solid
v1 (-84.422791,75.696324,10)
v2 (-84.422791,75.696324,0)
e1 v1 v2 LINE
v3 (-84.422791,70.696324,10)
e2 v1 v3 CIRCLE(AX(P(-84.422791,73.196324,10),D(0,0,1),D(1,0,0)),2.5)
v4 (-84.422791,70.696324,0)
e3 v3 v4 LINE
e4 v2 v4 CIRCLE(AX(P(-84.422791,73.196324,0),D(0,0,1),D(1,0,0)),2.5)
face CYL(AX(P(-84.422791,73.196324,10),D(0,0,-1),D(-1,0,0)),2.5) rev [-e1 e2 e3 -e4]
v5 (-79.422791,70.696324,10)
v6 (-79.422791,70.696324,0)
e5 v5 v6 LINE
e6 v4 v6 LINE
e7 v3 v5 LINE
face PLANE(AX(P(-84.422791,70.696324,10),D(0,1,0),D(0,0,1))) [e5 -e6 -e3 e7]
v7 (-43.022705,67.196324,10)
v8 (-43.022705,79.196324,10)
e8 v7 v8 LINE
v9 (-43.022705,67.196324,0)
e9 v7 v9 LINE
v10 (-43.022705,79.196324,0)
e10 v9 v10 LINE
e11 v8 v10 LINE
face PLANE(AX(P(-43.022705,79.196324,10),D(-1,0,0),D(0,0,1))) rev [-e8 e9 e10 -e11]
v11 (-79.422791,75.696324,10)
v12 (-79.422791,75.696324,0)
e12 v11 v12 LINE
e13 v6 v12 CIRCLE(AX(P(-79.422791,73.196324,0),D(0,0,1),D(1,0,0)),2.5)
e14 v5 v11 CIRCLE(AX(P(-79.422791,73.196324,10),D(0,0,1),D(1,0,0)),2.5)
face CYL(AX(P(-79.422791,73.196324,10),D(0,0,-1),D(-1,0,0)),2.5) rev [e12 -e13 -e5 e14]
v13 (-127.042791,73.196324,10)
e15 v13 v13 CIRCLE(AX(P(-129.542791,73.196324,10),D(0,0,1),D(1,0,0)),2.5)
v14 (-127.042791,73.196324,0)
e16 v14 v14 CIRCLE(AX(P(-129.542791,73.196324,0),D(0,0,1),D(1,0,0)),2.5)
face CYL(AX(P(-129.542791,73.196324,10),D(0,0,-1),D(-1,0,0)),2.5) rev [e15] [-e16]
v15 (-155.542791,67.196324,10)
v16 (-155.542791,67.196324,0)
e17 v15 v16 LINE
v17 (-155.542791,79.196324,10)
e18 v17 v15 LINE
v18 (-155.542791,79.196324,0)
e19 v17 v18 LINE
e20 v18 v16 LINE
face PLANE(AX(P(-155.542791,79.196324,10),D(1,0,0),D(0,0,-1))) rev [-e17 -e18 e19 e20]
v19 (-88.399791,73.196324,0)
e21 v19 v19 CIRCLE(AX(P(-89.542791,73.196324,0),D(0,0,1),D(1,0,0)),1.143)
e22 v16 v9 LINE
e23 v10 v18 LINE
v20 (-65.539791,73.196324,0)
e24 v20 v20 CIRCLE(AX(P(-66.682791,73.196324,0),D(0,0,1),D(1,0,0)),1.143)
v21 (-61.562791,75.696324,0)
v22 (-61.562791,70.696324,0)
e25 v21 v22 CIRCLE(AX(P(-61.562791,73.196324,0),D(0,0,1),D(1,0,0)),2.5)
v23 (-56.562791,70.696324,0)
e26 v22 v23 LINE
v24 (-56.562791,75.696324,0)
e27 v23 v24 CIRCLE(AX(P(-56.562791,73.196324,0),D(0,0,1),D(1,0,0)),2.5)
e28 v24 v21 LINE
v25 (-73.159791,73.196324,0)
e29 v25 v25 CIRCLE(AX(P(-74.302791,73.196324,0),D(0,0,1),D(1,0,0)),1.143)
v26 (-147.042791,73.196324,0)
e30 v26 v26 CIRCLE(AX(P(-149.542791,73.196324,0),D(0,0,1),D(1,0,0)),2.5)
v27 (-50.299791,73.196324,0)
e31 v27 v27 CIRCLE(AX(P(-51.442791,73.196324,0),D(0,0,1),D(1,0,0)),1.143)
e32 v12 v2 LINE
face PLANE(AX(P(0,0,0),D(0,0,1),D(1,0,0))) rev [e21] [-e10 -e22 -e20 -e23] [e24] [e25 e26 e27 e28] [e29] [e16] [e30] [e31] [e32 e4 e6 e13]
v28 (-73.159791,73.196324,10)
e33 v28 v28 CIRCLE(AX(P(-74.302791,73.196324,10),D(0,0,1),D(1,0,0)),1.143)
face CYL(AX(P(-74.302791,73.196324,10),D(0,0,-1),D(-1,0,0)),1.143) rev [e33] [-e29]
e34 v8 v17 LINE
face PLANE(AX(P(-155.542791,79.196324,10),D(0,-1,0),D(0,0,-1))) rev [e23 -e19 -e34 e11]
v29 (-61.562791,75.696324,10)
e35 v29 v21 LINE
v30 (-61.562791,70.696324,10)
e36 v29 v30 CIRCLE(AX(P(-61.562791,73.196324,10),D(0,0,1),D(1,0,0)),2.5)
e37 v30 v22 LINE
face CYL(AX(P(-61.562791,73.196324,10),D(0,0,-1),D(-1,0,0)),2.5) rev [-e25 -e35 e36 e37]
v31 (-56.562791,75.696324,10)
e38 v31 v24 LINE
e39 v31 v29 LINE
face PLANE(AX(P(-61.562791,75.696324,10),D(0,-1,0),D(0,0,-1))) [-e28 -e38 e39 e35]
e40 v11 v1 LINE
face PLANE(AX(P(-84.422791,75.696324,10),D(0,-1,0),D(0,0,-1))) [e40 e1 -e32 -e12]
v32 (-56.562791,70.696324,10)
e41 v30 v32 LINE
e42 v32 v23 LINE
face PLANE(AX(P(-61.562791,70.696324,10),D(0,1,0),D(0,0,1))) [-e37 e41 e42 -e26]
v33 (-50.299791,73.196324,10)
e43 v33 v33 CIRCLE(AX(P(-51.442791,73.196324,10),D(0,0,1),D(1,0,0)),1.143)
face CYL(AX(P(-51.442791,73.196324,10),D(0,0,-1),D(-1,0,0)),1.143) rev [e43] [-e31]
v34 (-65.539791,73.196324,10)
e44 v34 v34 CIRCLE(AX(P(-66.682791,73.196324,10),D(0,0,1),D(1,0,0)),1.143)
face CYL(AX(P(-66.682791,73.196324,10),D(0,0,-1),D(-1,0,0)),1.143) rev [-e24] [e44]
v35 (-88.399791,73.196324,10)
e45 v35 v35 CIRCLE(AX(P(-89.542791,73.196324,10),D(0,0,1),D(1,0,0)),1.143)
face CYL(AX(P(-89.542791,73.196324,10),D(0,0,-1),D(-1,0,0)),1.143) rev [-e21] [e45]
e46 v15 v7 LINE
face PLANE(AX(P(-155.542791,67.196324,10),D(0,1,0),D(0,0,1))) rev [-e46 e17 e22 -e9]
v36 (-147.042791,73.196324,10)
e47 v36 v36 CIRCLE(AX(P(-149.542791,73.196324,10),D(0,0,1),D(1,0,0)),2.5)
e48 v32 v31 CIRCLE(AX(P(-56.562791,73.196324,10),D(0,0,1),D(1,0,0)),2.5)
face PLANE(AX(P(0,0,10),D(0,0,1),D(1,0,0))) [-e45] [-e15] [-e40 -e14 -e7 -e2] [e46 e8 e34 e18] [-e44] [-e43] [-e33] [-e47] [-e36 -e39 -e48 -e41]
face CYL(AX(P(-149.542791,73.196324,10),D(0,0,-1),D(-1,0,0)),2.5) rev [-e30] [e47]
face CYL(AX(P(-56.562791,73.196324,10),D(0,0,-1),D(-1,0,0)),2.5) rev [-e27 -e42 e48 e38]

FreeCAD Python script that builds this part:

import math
import FreeCAD as App
import Part
import Sketcher


def add_polygon(sketch, points):
    """Adds a closed chain of lines whose ends are joined by coincident constraints."""
    first, n = sketch.GeometryCount, len(points)
    for a, b in zip(points, points[1:] + points[:1]):
        sketch.addGeometry(Part.LineSegment(App.Vector(*a, 0), App.Vector(*b, 0)), False)
    for i in range(n):
        sketch.addConstraint(Sketcher.Constraint("Coincident", first + i, 2, first + (i + 1) % n, 1))

doc = App.newDocument("Part")
body = doc.addObject("PartDesign::Body", "Body")

# Sketch on XY plane
sketch1 = body.newObject("Sketcher::SketchObject", "Sketch")
sketch1.AttachmentSupport = (doc.getObject("XY_Plane"), [""])
sketch1.MapMode = "FlatFace"
add_polygon(sketch1, [(-155.5, 79.2), (-155.5, 67.2), (-43, 67.2), (-43, 79.2)])  # lines 0-3
sketch1.addGeometry(Part.Circle(App.Vector(-149.5, 73.2, 0), App.Vector(0, 0, 1), 2.5), False)  # 4
sketch1.addGeometry(Part.Circle(App.Vector(-129.5, 73.2, 0), App.Vector(0, 0, 1), 2.5), False)  # 5
sketch1.addGeometry(Part.Circle(App.Vector(-89.5, 73.2, 0), App.Vector(0, 0, 1), 1.1), False)  # 6
sketch1.addGeometry(Part.ArcOfCircle(Part.Circle(App.Vector(-84.4, 73.2, 0), App.Vector(0, 0, 1), 2.5), math.radians(90), math.radians(270)), False)  # 7
sketch1.addGeometry(Part.LineSegment(App.Vector(-84.4, 75.7, 0), App.Vector(-79.4, 75.7, 0)), False)  # 8
sketch1.addGeometry(Part.ArcOfCircle(Part.Circle(App.Vector(-79.4, 73.2, 0), App.Vector(0, 0, 1), 2.5), math.radians(-90), math.radians(90)), False)  # 9
sketch1.addGeometry(Part.LineSegment(App.Vector(-79.4, 70.7, 0), App.Vector(-84.4, 70.7, 0)), False)  # 10
sketch1.addGeometry(Part.Circle(App.Vector(-74.3, 73.2, 0), App.Vector(0, 0, 1), 1.1), False)  # 11
sketch1.addGeometry(Part.Circle(App.Vector(-66.7, 73.2, 0), App.Vector(0, 0, 1), 1.1), False)  # 12
sketch1.addGeometry(Part.ArcOfCircle(Part.Circle(App.Vector(-61.6, 73.2, 0), App.Vector(0, 0, 1), 2.5), math.radians(90), math.radians(270)), False)  # 13
sketch1.addGeometry(Part.LineSegment(App.Vector(-61.6, 75.7, 0), App.Vector(-56.6, 75.7, 0)), False)  # 14
sketch1.addGeometry(Part.ArcOfCircle(Part.Circle(App.Vector(-56.6, 73.2, 0), App.Vector(0, 0, 1), 2.5), math.radians(-90), math.radians(90)), False)  # 15
sketch1.addGeometry(Part.LineSegment(App.Vector(-56.6, 70.7, 0), App.Vector(-61.6, 70.7, 0)), False)  # 16
sketch1.addGeometry(Part.Circle(App.Vector(-51.4, 73.2, 0), App.Vector(0, 0, 1), 1.1), False)  # 17
sketch1.addConstraint([
    Sketcher.Constraint("Tangent", 7, 1, 8, 1),
    Sketcher.Constraint("Tangent", 8, 2, 9, 2),
    Sketcher.Constraint("Tangent", 9, 1, 10, 1),
    Sketcher.Constraint("Tangent", 10, 2, 7, 2),
    Sketcher.Constraint("Tangent", 13, 1, 14, 1),
    Sketcher.Constraint("Tangent", 14, 2, 15, 2),
    Sketcher.Constraint("Tangent", 15, 1, 16, 1),
    Sketcher.Constraint("Tangent", 16, 2, 13, 2),
    Sketcher.Constraint("Vertical", 0),
    Sketcher.Constraint("Horizontal", 1),
    Sketcher.Constraint("Vertical", 2),
    Sketcher.Constraint("Horizontal", 3),
    Sketcher.Constraint("Horizontal", 8),
    Sketcher.Constraint("Horizontal", 10),
    Sketcher.Constraint("Horizontal", 14),
    Sketcher.Constraint("Horizontal", 16),
    Sketcher.Constraint("Equal", 4, 5),
    Sketcher.Constraint("Equal", 5, 7),
    Sketcher.Constraint("Equal", 6, 11),
    Sketcher.Constraint("Equal", 11, 12),
    Sketcher.Constraint("Equal", 9, 13),
    Sketcher.Constraint("Equal", 12, 17),
    Sketcher.Constraint("Horizontal", 4, 3, 5, 3),
    Sketcher.Constraint("Horizontal", 5, 3, 6, 3),
    Sketcher.Constraint("Horizontal", 6, 3, 7, 3),
    Sketcher.Constraint("Horizontal", 9, 3, 11, 3),
    Sketcher.Constraint("Horizontal", 11, 3, 12, 3),
    Sketcher.Constraint("Horizontal", 12, 3, 13, 3),
    Sketcher.Constraint("Horizontal", 15, 3, 17, 3),
    Sketcher.Constraint("Equal", 10, 14),
    Sketcher.Constraint("Diameter", 4, 5.0),
    Sketcher.Constraint("DistanceX", 8, 1, 8, 2, 5.0),
    Sketcher.Constraint("DistanceY", 0, 2, 0, 1, 12.0),
    Sketcher.Constraint("Diameter", 6, 2.286),
    Sketcher.Constraint("DistanceX", 4, 3, 5, 3, 20.0),
    Sketcher.Constraint("DistanceX", 5, 3, 6, 3, 40.0),
    Sketcher.Constraint("DistanceX", 0, 2, 4, 3, 6.0),
    Sketcher.Constraint("DistanceY", 0, 2, 4, 3, 6.0),
    Sketcher.Constraint("DistanceX", 6, 3, 7, 3, 5.12),
    Sketcher.Constraint("DistanceX", 9, 3, 11, 3, 5.12),
    Sketcher.Constraint("DistanceX", 11, 3, 12, 3, 7.62),
    Sketcher.Constraint("DistanceX", 12, 3, 13, 3, 5.12),
    Sketcher.Constraint("DistanceX", 15, 3, 17, 3, 5.12),
    Sketcher.Constraint("DistanceX", 1, 1, 1, 2, 112.520086),
    Sketcher.Constraint("DistanceX", 4, 3, -1, 1, 149.542791),
    Sketcher.Constraint("DistanceY", -1, 1, 4, 3, 73.196324),
])
pad1 = body.newObject("PartDesign::Pad", "Pad")
pad1.Profile = sketch1
pad1.Length = 10

doc.recompute()
